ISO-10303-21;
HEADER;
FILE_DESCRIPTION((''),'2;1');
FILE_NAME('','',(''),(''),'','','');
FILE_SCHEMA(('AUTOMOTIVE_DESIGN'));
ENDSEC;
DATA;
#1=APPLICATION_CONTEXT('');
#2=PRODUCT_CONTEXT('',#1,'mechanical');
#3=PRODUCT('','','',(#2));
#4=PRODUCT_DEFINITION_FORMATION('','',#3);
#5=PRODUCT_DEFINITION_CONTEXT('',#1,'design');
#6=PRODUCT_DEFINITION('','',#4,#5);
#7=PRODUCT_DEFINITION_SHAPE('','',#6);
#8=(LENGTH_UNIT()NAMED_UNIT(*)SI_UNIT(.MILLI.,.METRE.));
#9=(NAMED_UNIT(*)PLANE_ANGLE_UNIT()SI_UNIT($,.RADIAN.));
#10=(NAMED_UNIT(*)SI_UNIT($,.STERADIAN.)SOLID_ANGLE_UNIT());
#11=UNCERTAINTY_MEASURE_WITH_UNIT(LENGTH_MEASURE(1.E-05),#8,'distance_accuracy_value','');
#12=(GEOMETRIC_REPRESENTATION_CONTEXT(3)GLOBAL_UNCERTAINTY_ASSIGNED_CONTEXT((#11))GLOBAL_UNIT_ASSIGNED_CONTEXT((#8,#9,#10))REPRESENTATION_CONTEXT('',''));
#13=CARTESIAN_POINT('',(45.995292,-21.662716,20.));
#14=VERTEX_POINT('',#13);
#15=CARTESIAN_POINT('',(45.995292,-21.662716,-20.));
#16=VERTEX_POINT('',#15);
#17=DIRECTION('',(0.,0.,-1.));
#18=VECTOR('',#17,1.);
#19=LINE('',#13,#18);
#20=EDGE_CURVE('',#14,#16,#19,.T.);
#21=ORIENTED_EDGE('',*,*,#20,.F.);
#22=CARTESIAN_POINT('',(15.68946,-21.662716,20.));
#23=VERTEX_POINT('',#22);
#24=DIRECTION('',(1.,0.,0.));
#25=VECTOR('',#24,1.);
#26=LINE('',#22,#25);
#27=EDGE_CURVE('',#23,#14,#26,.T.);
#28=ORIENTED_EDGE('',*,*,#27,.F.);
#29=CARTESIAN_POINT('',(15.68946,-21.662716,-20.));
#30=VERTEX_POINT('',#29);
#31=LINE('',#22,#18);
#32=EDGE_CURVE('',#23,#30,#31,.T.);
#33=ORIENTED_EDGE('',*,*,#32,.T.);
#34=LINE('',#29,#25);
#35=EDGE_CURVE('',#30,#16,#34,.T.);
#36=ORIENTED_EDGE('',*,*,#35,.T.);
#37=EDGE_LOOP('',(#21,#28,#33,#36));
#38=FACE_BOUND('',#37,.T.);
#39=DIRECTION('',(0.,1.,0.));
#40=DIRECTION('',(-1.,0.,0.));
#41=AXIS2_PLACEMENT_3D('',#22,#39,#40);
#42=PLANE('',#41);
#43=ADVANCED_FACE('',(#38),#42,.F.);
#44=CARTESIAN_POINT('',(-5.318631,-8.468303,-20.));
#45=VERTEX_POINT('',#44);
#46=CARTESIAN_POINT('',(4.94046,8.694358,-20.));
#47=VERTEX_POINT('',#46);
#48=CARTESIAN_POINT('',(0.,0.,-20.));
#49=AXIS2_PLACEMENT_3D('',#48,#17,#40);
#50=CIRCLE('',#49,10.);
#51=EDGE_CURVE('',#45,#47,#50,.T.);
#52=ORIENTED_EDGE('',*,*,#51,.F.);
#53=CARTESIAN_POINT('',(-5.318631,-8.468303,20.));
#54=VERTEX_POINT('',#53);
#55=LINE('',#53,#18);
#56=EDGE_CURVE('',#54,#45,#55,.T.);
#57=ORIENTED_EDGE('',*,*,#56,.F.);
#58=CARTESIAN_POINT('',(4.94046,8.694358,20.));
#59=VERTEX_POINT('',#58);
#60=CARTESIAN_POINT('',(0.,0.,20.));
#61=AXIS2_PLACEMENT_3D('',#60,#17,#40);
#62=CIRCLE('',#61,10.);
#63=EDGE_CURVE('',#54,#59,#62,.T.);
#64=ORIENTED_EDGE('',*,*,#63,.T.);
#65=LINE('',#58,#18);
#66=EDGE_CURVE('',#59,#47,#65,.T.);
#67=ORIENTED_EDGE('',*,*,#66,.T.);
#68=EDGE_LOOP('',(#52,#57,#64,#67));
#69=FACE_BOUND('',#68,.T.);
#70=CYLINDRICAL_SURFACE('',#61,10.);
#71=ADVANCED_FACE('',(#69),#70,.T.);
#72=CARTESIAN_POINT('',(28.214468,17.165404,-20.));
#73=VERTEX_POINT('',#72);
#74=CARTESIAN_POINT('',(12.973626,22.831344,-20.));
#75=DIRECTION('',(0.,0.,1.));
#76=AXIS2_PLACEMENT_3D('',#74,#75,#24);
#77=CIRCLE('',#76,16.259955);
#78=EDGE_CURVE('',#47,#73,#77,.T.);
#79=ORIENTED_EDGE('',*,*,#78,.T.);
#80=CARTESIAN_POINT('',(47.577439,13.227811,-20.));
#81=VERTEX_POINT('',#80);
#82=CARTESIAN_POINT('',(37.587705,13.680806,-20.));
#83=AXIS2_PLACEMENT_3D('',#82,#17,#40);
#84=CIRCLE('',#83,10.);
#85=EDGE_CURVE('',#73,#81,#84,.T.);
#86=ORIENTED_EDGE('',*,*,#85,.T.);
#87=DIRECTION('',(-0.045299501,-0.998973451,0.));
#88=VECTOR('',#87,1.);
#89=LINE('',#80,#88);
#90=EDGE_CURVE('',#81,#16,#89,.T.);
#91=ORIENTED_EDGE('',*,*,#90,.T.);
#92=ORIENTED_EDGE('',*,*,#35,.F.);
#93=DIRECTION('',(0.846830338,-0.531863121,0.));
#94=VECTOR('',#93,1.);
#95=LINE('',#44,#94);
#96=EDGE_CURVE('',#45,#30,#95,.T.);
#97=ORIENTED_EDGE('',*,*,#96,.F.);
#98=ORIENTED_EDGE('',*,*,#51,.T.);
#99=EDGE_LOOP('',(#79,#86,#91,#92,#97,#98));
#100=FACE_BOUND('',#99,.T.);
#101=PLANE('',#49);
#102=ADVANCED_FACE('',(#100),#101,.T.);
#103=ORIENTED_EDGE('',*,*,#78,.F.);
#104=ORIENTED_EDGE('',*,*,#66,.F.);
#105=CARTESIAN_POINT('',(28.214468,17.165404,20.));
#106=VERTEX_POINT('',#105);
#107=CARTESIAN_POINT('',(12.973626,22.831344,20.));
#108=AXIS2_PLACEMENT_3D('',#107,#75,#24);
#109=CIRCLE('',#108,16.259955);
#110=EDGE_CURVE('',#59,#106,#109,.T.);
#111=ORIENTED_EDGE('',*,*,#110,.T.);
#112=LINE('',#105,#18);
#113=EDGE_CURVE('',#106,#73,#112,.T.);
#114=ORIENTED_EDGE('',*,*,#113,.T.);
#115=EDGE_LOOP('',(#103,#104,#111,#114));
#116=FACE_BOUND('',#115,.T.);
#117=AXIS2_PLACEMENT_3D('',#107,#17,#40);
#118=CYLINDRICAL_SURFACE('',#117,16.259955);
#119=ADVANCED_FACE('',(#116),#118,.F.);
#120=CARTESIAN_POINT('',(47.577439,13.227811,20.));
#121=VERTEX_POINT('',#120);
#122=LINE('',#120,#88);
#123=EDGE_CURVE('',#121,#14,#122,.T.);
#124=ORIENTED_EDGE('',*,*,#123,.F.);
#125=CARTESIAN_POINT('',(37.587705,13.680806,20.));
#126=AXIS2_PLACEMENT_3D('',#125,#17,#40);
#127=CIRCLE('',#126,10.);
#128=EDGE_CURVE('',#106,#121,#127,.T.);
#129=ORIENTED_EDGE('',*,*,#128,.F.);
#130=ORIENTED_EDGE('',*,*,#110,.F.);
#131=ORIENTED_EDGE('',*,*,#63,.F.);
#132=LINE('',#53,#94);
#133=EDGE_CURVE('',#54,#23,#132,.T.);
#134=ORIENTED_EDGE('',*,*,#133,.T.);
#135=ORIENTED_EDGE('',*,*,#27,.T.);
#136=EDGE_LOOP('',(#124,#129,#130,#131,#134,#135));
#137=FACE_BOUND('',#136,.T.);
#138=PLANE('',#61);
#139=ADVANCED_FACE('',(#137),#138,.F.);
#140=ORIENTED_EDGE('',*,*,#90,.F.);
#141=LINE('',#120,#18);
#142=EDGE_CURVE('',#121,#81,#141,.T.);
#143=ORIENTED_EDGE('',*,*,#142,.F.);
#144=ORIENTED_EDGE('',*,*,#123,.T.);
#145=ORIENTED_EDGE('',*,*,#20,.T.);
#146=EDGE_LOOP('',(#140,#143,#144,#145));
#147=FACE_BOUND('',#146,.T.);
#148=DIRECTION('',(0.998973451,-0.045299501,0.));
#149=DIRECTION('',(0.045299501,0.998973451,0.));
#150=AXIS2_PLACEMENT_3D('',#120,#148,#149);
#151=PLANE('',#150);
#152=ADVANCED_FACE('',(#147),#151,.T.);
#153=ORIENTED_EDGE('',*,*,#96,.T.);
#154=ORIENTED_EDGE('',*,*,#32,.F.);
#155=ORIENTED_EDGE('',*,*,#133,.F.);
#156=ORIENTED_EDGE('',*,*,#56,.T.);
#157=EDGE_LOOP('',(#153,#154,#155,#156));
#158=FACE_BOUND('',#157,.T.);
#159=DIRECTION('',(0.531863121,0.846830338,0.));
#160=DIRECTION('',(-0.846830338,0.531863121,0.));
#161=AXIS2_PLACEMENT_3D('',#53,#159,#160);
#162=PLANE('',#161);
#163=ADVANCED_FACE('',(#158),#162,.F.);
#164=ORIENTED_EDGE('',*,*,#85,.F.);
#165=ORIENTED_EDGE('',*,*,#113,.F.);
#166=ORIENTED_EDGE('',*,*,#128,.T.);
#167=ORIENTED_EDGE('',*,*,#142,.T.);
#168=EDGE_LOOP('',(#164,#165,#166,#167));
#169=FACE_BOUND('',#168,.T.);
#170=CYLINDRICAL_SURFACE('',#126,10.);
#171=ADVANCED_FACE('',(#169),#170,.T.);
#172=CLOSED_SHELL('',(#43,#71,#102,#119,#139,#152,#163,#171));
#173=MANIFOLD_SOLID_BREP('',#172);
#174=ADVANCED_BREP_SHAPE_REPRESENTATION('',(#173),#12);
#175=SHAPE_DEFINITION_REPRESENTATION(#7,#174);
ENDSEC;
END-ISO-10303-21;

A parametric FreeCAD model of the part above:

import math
import FreeCAD as App
import Part
import Sketcher
Q = App.Units.Quantity

doc = App.newDocument("Part")
body = doc.addObject("PartDesign::Body", "Body")

# Sketch on XY plane
sketch1 = body.newObject("Sketcher::SketchObject", "Sketch")
sketch1.AttachmentSupport = (doc.getObject("XY_Plane"), [""])
sketch1.MapMode = "FlatFace"
sketch1.addGeometry([
    Part.LineSegment(App.Vector(46, -22, 0), App.Vector(48, 13, 0)),  # 0
    Part.ArcOfCircle(Part.Circle(App.Vector(38, 14, 0), App.Vector(0, 0, 1), 10), math.radians(-3), math.radians(160)),  # 1
    Part.ArcOfCircle(Part.Circle(App.Vector(13, 23, 0), App.Vector(0, 0, 1), 16), math.radians(-120), math.radians(-20)),  # 2
    Part.ArcOfCircle(Part.Circle(App.Vector(0, 0, 0), App.Vector(0, 0, 1), 10), math.radians(60), math.radians(238)),  # 3
    Part.LineSegment(App.Vector(-5, -8, 0), App.Vector(16, -22, 0)),  # 4
    Part.LineSegment(App.Vector(16, -22, 0), App.Vector(46, -22, 0)),  # 5
], False)
sketch1.addConstraint([
    Sketcher.Constraint("Tangent", 0, 2, 1, 1),
    Sketcher.Constraint("Tangent", 1, 2, 2, 2),
    Sketcher.Constraint("Tangent", 2, 1, 3, 1),
    Sketcher.Constraint("Tangent", 3, 2, 4, 1),
    Sketcher.Constraint("Coincident", 4, 2, 5, 1),
    Sketcher.Constraint("Coincident", 5, 2, 0, 1),
    Sketcher.Constraint("Horizontal", 5),
    Sketcher.Constraint("Coincident", 3, 3, -1, 1),
    Sketcher.Constraint("Equal", 1, 3),
    Sketcher.Constraint("Radius", 1, Q("10 mm")),
    Sketcher.Constraint("Radius", 2, Q("16.259955 mm")),
    Sketcher.Constraint("DistanceX", 2, 1, 4, 2, Q("10.749 mm")),
    Sketcher.Constraint("DistanceX", 5, 1, 5, 2, Q("30.305831 mm")),
    Sketcher.Constraint("DistanceX", 3, 2, 1, 2, Q("33.533099 mm")),
    Sketcher.Constraint("Distance", 0, Q("34.926381 mm")),
    Sketcher.Constraint("Distance", 4, Q("24.807911 mm")),
])
pad1 = body.newObject("PartDesign::Pad", "Pad")
pad1.Profile = sketch1
pad1.Length = 40
pad1.Midplane = True

doc.recompute()
